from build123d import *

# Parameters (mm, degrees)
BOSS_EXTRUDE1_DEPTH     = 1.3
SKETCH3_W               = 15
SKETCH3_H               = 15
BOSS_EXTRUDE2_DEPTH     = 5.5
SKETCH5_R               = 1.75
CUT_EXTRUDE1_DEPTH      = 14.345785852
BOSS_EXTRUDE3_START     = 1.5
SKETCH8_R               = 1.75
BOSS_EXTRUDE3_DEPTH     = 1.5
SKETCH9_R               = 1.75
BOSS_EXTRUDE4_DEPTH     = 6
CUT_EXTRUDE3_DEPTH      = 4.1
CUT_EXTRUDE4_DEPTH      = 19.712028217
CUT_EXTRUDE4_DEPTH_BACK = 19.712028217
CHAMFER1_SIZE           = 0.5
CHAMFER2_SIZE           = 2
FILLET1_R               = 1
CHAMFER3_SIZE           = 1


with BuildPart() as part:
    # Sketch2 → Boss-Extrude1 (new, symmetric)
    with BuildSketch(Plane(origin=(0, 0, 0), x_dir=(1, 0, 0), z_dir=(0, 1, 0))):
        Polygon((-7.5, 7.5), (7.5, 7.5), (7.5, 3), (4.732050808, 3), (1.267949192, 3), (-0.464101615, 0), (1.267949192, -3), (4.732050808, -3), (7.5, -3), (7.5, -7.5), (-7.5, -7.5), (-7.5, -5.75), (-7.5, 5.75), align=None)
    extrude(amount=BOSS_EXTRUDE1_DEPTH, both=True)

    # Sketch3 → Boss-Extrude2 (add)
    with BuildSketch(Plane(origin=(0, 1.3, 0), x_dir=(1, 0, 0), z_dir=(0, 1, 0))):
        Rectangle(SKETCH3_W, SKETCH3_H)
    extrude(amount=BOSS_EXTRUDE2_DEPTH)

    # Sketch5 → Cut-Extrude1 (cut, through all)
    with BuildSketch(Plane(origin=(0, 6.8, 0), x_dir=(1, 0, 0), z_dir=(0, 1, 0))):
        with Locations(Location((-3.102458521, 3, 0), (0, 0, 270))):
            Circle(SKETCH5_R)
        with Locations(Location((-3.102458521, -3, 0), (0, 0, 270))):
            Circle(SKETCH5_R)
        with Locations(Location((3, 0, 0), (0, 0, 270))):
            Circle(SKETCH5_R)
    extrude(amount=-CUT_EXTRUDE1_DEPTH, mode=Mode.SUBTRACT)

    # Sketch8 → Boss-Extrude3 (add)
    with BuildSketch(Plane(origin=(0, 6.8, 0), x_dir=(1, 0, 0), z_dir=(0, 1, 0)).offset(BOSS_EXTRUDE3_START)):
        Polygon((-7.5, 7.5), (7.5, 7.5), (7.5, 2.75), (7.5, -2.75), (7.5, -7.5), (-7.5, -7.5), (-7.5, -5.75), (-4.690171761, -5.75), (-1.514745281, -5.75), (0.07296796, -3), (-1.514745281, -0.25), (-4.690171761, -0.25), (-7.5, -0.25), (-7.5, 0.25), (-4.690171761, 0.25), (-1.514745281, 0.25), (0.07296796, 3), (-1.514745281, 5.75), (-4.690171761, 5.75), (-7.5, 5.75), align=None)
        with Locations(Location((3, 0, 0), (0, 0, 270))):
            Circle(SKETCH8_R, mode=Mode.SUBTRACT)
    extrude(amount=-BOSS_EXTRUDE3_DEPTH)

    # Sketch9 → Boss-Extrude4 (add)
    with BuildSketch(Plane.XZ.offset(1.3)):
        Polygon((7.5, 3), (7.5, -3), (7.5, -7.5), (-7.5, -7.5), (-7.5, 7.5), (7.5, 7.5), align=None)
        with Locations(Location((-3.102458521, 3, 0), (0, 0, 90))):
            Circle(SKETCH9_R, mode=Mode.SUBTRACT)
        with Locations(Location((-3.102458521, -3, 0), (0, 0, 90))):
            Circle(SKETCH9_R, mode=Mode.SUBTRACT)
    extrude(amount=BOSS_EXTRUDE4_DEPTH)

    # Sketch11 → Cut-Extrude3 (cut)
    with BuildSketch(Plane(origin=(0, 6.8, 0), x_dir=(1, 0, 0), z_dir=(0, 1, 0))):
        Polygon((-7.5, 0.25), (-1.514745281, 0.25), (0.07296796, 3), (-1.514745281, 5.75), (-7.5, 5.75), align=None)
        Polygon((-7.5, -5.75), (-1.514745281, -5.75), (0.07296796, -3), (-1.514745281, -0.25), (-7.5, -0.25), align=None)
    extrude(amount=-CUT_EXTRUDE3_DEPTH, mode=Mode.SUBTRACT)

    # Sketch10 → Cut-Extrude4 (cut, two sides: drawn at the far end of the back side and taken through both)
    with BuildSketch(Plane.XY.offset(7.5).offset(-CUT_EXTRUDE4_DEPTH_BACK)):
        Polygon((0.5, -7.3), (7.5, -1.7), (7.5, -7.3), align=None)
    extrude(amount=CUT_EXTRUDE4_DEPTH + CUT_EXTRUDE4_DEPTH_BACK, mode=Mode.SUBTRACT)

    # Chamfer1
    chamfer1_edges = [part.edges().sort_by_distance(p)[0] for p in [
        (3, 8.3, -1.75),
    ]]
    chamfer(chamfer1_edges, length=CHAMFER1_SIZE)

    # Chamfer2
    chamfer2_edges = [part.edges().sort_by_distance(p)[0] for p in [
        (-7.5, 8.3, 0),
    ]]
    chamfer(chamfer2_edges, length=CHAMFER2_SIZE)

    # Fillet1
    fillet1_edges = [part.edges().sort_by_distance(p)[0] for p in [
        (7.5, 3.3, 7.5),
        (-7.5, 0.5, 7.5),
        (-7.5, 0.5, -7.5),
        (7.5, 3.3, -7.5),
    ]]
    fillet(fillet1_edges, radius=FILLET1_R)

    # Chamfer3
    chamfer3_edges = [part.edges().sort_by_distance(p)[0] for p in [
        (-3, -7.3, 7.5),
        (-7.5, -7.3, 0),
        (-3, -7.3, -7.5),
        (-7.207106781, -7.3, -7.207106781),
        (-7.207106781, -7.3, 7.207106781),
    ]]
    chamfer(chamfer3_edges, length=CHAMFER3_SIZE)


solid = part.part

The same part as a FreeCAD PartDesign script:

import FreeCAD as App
import Part
import Sketcher
Q = App.Units.Quantity


def edges_at(feature, points):
    """Names of the edges that pass closest to the given points."""
    edges = feature.Shape.Edges
    near = lambda p: min(range(len(edges)), key=lambda i: edges[i].distToShape(Part.Vertex(*p))[0])
    return sorted({f"Edge{near(p) + 1}" for p in points})

doc = App.newDocument("Part")
params = doc.addObject("Spreadsheet::Sheet", "Params")
for row, (alias, value) in enumerate([
    ("sketch1_width", "15 mm"),
    ("sketch1_height", "4.5 mm"),
    ("pad1_length", "2.6 mm"),
    ("sketch2_width", "15 mm"),
    ("pad2_length", "5.5 mm"),
    ("sketch3_diameter", "3.5 mm"),
    ("sketch4_diameter", "3.5 mm"),
    ("sketch4_width", "15 mm"),
    ("sketch4_height", "0.5 mm"),
    ("pad3_length", "1.5 mm"),
    ("sketch5_diameter", "3.5 mm"),
    ("sketch5_width", "15 mm"),
    ("pad4_length", "6 mm"),
    ("sketch6_height", "5.5 mm"),
    ("pocket2_length", "4.1 mm"),
    ("sketch7_width", "7 mm"),
    ("sketch7_height", "5.6 mm"),
    ("chamfer_size", "0.5 mm"),
    ("chamfer2_size", "2 mm"),
    ("fillet_radius", "1 mm"),
    ("chamfer3_size", "1 mm"),
], start=1):
    params.set(f"A{row}", alias)
    params.set(f"B{row}", "=" + value)
    params.setAlias(f"B{row}", alias)

body = doc.addObject("PartDesign::Body", "Body")

sketch1 = body.newObject("Sketcher::SketchObject", "Sketch")
sketch1.AttachmentSupport = (doc.getObject("XZ_Plane"), [""])
sketch1.MapMode = "FlatFace"
sketch1.addGeometry(Part.LineSegment(App.Vector(7.5, -7.5, 0), App.Vector(-7.5, -7.5, 0)), False)
sketch1.addGeometry(Part.LineSegment(App.Vector(-7.5, -7.5, 0), App.Vector(-7.5, 7.5, 0)), False)
sketch1.addGeometry(Part.LineSegment(App.Vector(-7.5, 7.5, 0), App.Vector(7.5, 7.5, 0)), False)
sketch1.addGeometry(Part.LineSegment(App.Vector(7.5, 7.5, 0), App.Vector(7.5, 3, 0)), False)
sketch1.addGeometry(Part.LineSegment(App.Vector(7.5, 3, 0), App.Vector(1.3, 3, 0)), False)
sketch1.addGeometry(Part.LineSegment(App.Vector(1.3, 3, 0), App.Vector(-0.5, 0, 0)), False)
sketch1.addGeometry(Part.LineSegment(App.Vector(-0.5, 0, 0), App.Vector(1.3, -3, 0)), False)
sketch1.addGeometry(Part.LineSegment(App.Vector(1.3, -3, 0), App.Vector(7.5, -3, 0)), False)
sketch1.addGeometry(Part.LineSegment(App.Vector(7.5, -3, 0), App.Vector(7.5, -7.5, 0)), False)
sketch1.addConstraint(Sketcher.Constraint("Coincident", 0, 2, 1, 1))
sketch1.addConstraint(Sketcher.Constraint("Coincident", 1, 2, 2, 1))
sketch1.addConstraint(Sketcher.Constraint("Coincident", 2, 2, 3, 1))
sketch1.addConstraint(Sketcher.Constraint("Coincident", 3, 2, 4, 1))
sketch1.addConstraint(Sketcher.Constraint("Coincident", 4, 2, 5, 1))
sketch1.addConstraint(Sketcher.Constraint("Coincident", 5, 2, 6, 1))
sketch1.addConstraint(Sketcher.Constraint("Coincident", 6, 2, 7, 1))
sketch1.addConstraint(Sketcher.Constraint("Coincident", 7, 2, 8, 1))
sketch1.addConstraint(Sketcher.Constraint("Coincident", 8, 2, 0, 1))
sketch1.addConstraint(Sketcher.Constraint("Horizontal", 0))
sketch1.addConstraint(Sketcher.Constraint("Vertical", 1))
sketch1.addConstraint(Sketcher.Constraint("Horizontal", 2))
sketch1.addConstraint(Sketcher.Constraint("Vertical", 3))
sketch1.addConstraint(Sketcher.Constraint("Horizontal", 4))
sketch1.addConstraint(Sketcher.Constraint("Horizontal", 7))
sketch1.addConstraint(Sketcher.Constraint("Vertical", 8))
sketch1.addConstraint(Sketcher.Constraint("Symmetric", 0, 2, 2, 2, -1, 1))
sketch1.addConstraint(Sketcher.Constraint("Symmetric", 4, 2, 6, 2, -1))
sketch1.addConstraint(Sketcher.Constraint("PointOnObject", 5, 2, -1))
sketch1.addConstraint(Sketcher.Constraint("Vertical", 3, 2, 7, 2))
sketch1.addConstraint(Sketcher.Constraint("Equal", 2, 1))
sketch1.addConstraint(Sketcher.Constraint("DistanceX", 0, 2, 0, 1, Q("15 mm")))
sketch1.addConstraint(Sketcher.Constraint("Angle", 5, Q("-120 deg")))
sketch1.addConstraint(Sketcher.Constraint("DistanceY", 3, 2, 3, 1, Q("4.5 mm")))
sketch1.addConstraint(Sketcher.Constraint("DistanceX", 4, 2, 4, 1, Q("6.232051 mm")))
sketch1.setExpression("Constraints[21]", "Params.sketch1_width")
sketch1.setExpression("Constraints[23]", "Params.sketch1_height")
pad1 = body.newObject("PartDesign::Pad", "Pad")
pad1.Profile = sketch1
pad1.setExpression("Length", "Params.pad1_length")
pad1.Midplane = True

sketch2 = body.newObject("Sketcher::SketchObject", "Sketch001")
sketch2.AttachmentSupport = (doc.getObject("XZ_Plane"), [""])
sketch2.MapMode = "FlatFace"
sketch2.AttachmentOffset = App.Placement(App.Vector(0, 0, -1.3), App.Rotation())
sketch2.addGeometry(Part.LineSegment(App.Vector(-8, -8, 0), App.Vector(-8, 8, 0)), False)
sketch2.addGeometry(Part.LineSegment(App.Vector(-8, 8, 0), App.Vector(8, 8, 0)), False)
sketch2.addGeometry(Part.LineSegment(App.Vector(8, 8, 0), App.Vector(8, -8, 0)), False)
sketch2.addGeometry(Part.LineSegment(App.Vector(8, -8, 0), App.Vector(-8, -8, 0)), False)
sketch2.addConstraint(Sketcher.Constraint("Coincident", 0, 2, 1, 1))
sketch2.addConstraint(Sketcher.Constraint("Coincident", 1, 2, 2, 1))
sketch2.addConstraint(Sketcher.Constraint("Coincident", 2, 2, 3, 1))
sketch2.addConstraint(Sketcher.Constraint("Coincident", 3, 2, 0, 1))
sketch2.addConstraint(Sketcher.Constraint("Vertical", 0))
sketch2.addConstraint(Sketcher.Constraint("Horizontal", 1))
sketch2.addConstraint(Sketcher.Constraint("Vertical", 2))
sketch2.addConstraint(Sketcher.Constraint("Horizontal", 3))
sketch2.addConstraint(Sketcher.Constraint("Symmetric", 0, 2, 2, 2, -1, 1))
sketch2.addConstraint(Sketcher.Constraint("Equal", 3, 0))
sketch2.addConstraint(Sketcher.Constraint("DistanceX", 1, 1, 1, 2, Q("15 mm")))
sketch2.setExpression("Constraints[10]", "Params.sketch2_width")
pad2 = body.newObject("PartDesign::Pad", "Pad001")
pad2.Profile = sketch2
pad2.setExpression("Length", "Params.pad2_length")
pad2.Reversed = True

sketch3 = body.newObject("Sketcher::SketchObject", "Sketch002")
sketch3.AttachmentSupport = (doc.getObject("XZ_Plane"), [""])
sketch3.MapMode = "FlatFace"
sketch3.AttachmentOffset = App.Placement(App.Vector(0, 0, -6.8), App.Rotation())
sketch3.addGeometry(Part.Circle(App.Vector(-3.1, -3, 0), App.Vector(0, 0, 1), 1.8), False)
sketch3.addGeometry(Part.Circle(App.Vector(-3.1, 3, 0), App.Vector(0, 0, 1), 1.8), False)
sketch3.addGeometry(Part.Circle(App.Vector(3, 0, 0), App.Vector(0, 0, 1), 1.8), False)
sketch3.addConstraint(Sketcher.Constraint("Equal", 0, 1))
sketch3.addConstraint(Sketcher.Constraint("Equal", 1, 2))
sketch3.addConstraint(Sketcher.Constraint("Symmetric", 0, 3, 1, 3, -1))
sketch3.addConstraint(Sketcher.Constraint("PointOnObject", 2, 3, -1))
sketch3.addConstraint(Sketcher.Constraint("Diameter", 0, Q("3.5 mm")))
sketch3.addConstraint(Sketcher.Constraint("DistanceY", 0, 3, -1, 1, Q("3 mm")))
sketch3.addConstraint(Sketcher.Constraint("DistanceX", -1, 1, 2, 3, Q("3 mm")))
sketch3.addConstraint(Sketcher.Constraint("DistanceX", 0, 3, -1, 1, Q("3.102459 mm")))
sketch3.setExpression("Constraints[4]", "Params.sketch3_diameter")
pocket1 = body.newObject("PartDesign::Pocket", "Pocket")
pocket1.Profile = sketch3
pocket1.Type = "ThroughAll"
pocket1.Reversed = True

sketch4 = body.newObject("Sketcher::SketchObject", "Sketch003")
sketch4.AttachmentSupport = (doc.getObject("XZ_Plane"), [""])
sketch4.MapMode = "FlatFace"
sketch4.AttachmentOffset = App.Placement(App.Vector(0, 0, -8.3), App.Rotation())
sketch4.addGeometry(Part.LineSegment(App.Vector(7.5, -7.5, 0), App.Vector(-7.5, -7.5, 0)), False)
sketch4.addGeometry(Part.LineSegment(App.Vector(-7.5, -7.5, 0), App.Vector(-7.5, -5.8, 0)), False)
sketch4.addGeometry(Part.LineSegment(App.Vector(-7.5, -5.8, 0), App.Vector(-1.5, -5.8, 0)), False)
sketch4.addGeometry(Part.LineSegment(App.Vector(-1.5, -5.8, 0), App.Vector(0.1, -3, 0)), False)
sketch4.addGeometry(Part.LineSegment(App.Vector(0.1, -3, 0), App.Vector(-1.5, -0.2, 0)), False)
sketch4.addGeometry(Part.LineSegment(App.Vector(-1.5, -0.2, 0), App.Vector(-7.5, -0.2, 0)), False)
sketch4.addGeometry(Part.LineSegment(App.Vector(-7.5, -0.2, 0), App.Vector(-7.5, 0.2, 0)), False)
sketch4.addGeometry(Part.LineSegment(App.Vector(-7.5, 0.2, 0), App.Vector(-1.5, 0.2, 0)), False)
sketch4.addGeometry(Part.LineSegment(App.Vector(-1.5, 0.2, 0), App.Vector(0.1, 3, 0)), False)
sketch4.addGeometry(Part.LineSegment(App.Vector(0.1, 3, 0), App.Vector(-1.5, 5.8, 0)), False)
sketch4.addGeometry(Part.LineSegment(App.Vector(-1.5, 5.8, 0), App.Vector(-7.5, 5.8, 0)), False)
sketch4.addGeometry(Part.LineSegment(App.Vector(-7.5, 5.8, 0), App.Vector(-7.5, 7.5, 0)), False)
sketch4.addGeometry(Part.LineSegment(App.Vector(-7.5, 7.5, 0), App.Vector(7.5, 7.5, 0)), False)
sketch4.addGeometry(Part.LineSegment(App.Vector(7.5, 7.5, 0), App.Vector(7.5, -7.5, 0)), False)
sketch4.addGeometry(Part.Circle(App.Vector(3, 0, 0), App.Vector(0, 0, 1), 1.8), False)
sketch4.addConstraint(Sketcher.Constraint("Coincident", 0, 2, 1, 1))
sketch4.addConstraint(Sketcher.Constraint("Coincident", 1, 2, 2, 1))
sketch4.addConstraint(Sketcher.Constraint("Coincident", 2, 2, 3, 1))
sketch4.addConstraint(Sketcher.Constraint("Coincident", 3, 2, 4, 1))
sketch4.addConstraint(Sketcher.Constraint("Coincident", 4, 2, 5, 1))
sketch4.addConstraint(Sketcher.Constraint("Coincident", 5, 2, 6, 1))
sketch4.addConstraint(Sketcher.Constraint("Coincident", 6, 2, 7, 1))
sketch4.addConstraint(Sketcher.Constraint("Coincident", 7, 2, 8, 1))
sketch4.addConstraint(Sketcher.Constraint("Coincident", 8, 2, 9, 1))
sketch4.addConstraint(Sketcher.Constraint("Coincident", 9, 2, 10, 1))
sketch4.addConstraint(Sketcher.Constraint("Coincident", 10, 2, 11, 1))
sketch4.addConstraint(Sketcher.Constraint("Coincident", 11, 2, 12, 1))
sketch4.addConstraint(Sketcher.Constraint("Coincident", 12, 2, 13, 1))
sketch4.addConstraint(Sketcher.Constraint("Coincident", 13, 2, 0, 1))
sketch4.addConstraint(Sketcher.Constraint("Horizontal", 0))
sketch4.addConstraint(Sketcher.Constraint("Vertical", 1))
sketch4.addConstraint(Sketcher.Constraint("Horizontal", 2))
sketch4.addConstraint(Sketcher.Constraint("Horizontal", 5))
sketch4.addConstraint(Sketcher.Constraint("Vertical", 6))
sketch4.addConstraint(Sketcher.Constraint("Horizontal", 7))
sketch4.addConstraint(Sketcher.Constraint("Horizontal", 10))
sketch4.addConstraint(Sketcher.Constraint("Vertical", 11))
sketch4.addConstraint(Sketcher.Constraint("Horizontal", 12))
sketch4.addConstraint(Sketcher.Constraint("Vertical", 13))
sketch4.addConstraint(Sketcher.Constraint("Symmetric", 0, 2, 12, 2, -1, 1))
sketch4.addConstraint(Sketcher.Constraint("Symmetric", 4, 2, 7, 2, -1))
sketch4.addConstraint(Sketcher.Constraint("Symmetric", 3, 2, 8, 2, -1))
sketch4.addConstraint(Sketcher.Constraint("Symmetric", 2, 2, 9, 2, -1))
sketch4.addConstraint(Sketcher.Constraint("PointOnObject", 14, 3, -1))
sketch4.addConstraint(Sketcher.Constraint("Parallel", 3, 8))
sketch4.addConstraint(Sketcher.Constraint("Vertical", 2, 2, 4, 2))
sketch4.addConstraint(Sketcher.Constraint("Vertical", 1, 2, 5, 2))
sketch4.addConstraint(Sketcher.Constraint("Vertical", 6, 2, 10, 2))
sketch4.addConstraint(Sketcher.Constraint("Equal", 12, 13))
sketch4.addConstraint(Sketcher.Constraint("Diameter", 14, Q("3.5 mm")))
sketch4.addConstraint(Sketcher.Constraint("DistanceX", 0, 2, 0, 1, Q("15 mm")))
sketch4.addConstraint(Sketcher.Constraint("Angle", 3, Q("60 deg")))
sketch4.addConstraint(Sketcher.Constraint("DistanceY", 6, 1, 6, 2, Q("0.5 mm")))
sketch4.addConstraint(Sketcher.Constraint("DistanceX", -1, 1, 14, 3, Q("3 mm")))
sketch4.addConstraint(Sketcher.Constraint("DistanceY", 3, 2, -1, 1, Q("3 mm")))
sketch4.addConstraint(Sketcher.Constraint("DistanceX", 2, 1, 2, 2, Q("5.985255 mm")))
sketch4.setExpression("Constraints[34]", "Params.sketch4_diameter")
sketch4.setExpression("Constraints[35]", "Params.sketch4_width")
sketch4.setExpression("Constraints[37]", "Params.sketch4_height")
pad3 = body.newObject("PartDesign::Pad", "Pad002")
pad3.Profile = sketch4
pad3.setExpression("Length", "Params.pad3_length")

sketch5 = body.newObject("Sketcher::SketchObject", "Sketch004")
sketch5.AttachmentSupport = (doc.getObject("XZ_Plane"), [""])
sketch5.MapMode = "FlatFace"
sketch5.AttachmentOffset = App.Placement(App.Vector(0, 0, 1.3), App.Rotation())
sketch5.addGeometry(Part.LineSegment(App.Vector(7.5, -7.5, 0), App.Vector(7.5, 7.5, 0)), False)
sketch5.addGeometry(Part.LineSegment(App.Vector(7.5, 7.5, 0), App.Vector(-7.5, 7.5, 0)), False)
sketch5.addGeometry(Part.LineSegment(App.Vector(-7.5, 7.5, 0), App.Vector(-7.5, -7.5, 0)), False)
sketch5.addGeometry(Part.LineSegment(App.Vector(-7.5, -7.5, 0), App.Vector(7.5, -7.5, 0)), False)
sketch5.addGeometry(Part.Circle(App.Vector(-3.1, -3, 0), App.Vector(0, 0, 1), 1.8), False)
sketch5.addGeometry(Part.Circle(App.Vector(-3.1, 3, 0), App.Vector(0, 0, 1), 1.8), False)
sketch5.addConstraint(Sketcher.Constraint("Coincident", 0, 2, 1, 1))
sketch5.addConstraint(Sketcher.Constraint("Coincident", 1, 2, 2, 1))
sketch5.addConstraint(Sketcher.Constraint("Coincident", 2, 2, 3, 1))
sketch5.addConstraint(Sketcher.Constraint("Coincident", 3, 2, 0, 1))
sketch5.addConstraint(Sketcher.Constraint("Vertical", 0))
sketch5.addConstraint(Sketcher.Constraint("Horizontal", 1))
sketch5.addConstraint(Sketcher.Constraint("Vertical", 2))
sketch5.addConstraint(Sketcher.Constraint("Horizontal", 3))
sketch5.addConstraint(Sketcher.Constraint("Equal", 4, 5))
sketch5.addConstraint(Sketcher.Constraint("Symmetric", 0, 2, 2, 2, -1, 1))
sketch5.addConstraint(Sketcher.Constraint("Symmetric", 4, 3, 5, 3, -1))
sketch5.addConstraint(Sketcher.Constraint("Equal", 3, 0))
sketch5.addConstraint(Sketcher.Constraint("Diameter", 4, Q("3.5 mm")))
sketch5.addConstraint(Sketcher.Constraint("DistanceX", 1, 2, 1, 1, Q("15 mm")))
sketch5.addConstraint(Sketcher.Constraint("DistanceY", 4, 3, -1, 1, Q("3 mm")))
sketch5.addConstraint(Sketcher.Constraint("DistanceX", 4, 3, -1, 1, Q("3.102459 mm")))
sketch5.setExpression("Constraints[12]", "Params.sketch5_diameter")
sketch5.setExpression("Constraints[13]", "Params.sketch5_width")
pad4 = body.newObject("PartDesign::Pad", "Pad003")
pad4.Profile = sketch5
pad4.setExpression("Length", "Params.pad4_length")

sketch6 = body.newObject("Sketcher::SketchObject", "Sketch005")
sketch6.AttachmentSupport = (doc.getObject("XZ_Plane"), [""])
sketch6.MapMode = "FlatFace"
sketch6.AttachmentOffset = App.Placement(App.Vector(0, 0, -6.8), App.Rotation())
sketch6.addGeometry(Part.LineSegment(App.Vector(-7.5, -0.2, 0), App.Vector(-1.5, -0.2, 0)), False)
sketch6.addGeometry(Part.LineSegment(App.Vector(-1.5, -0.2, 0), App.Vector(0.1, -3, 0)), False)
sketch6.addGeometry(Part.LineSegment(App.Vector(0.1, -3, 0), App.Vector(-1.5, -5.8, 0)), False)
sketch6.addGeometry(Part.LineSegment(App.Vector(-1.5, -5.8, 0), App.Vector(-7.5, -5.8, 0)), False)
sketch6.addGeometry(Part.LineSegment(App.Vector(-7.5, -5.8, 0), App.Vector(-7.5, -0.2, 0)), False)
sketch6.addGeometry(Part.LineSegment(App.Vector(-7.5, 5.8, 0), App.Vector(-1.5, 5.8, 0)), False)
sketch6.addGeometry(Part.LineSegment(App.Vector(-1.5, 5.8, 0), App.Vector(0.1, 3, 0)), False)
sketch6.addGeometry(Part.LineSegment(App.Vector(0.1, 3, 0), App.Vector(-1.5, 0.2, 0)), False)
sketch6.addGeometry(Part.LineSegment(App.Vector(-1.5, 0.2, 0), App.Vector(-7.5, 0.2, 0)), False)
sketch6.addGeometry(Part.LineSegment(App.Vector(-7.5, 0.2, 0), App.Vector(-7.5, 5.8, 0)), False)
sketch6.addConstraint(Sketcher.Constraint("Coincident", 0, 2, 1, 1))
sketch6.addConstraint(Sketcher.Constraint("Coincident", 1, 2, 2, 1))
sketch6.addConstraint(Sketcher.Constraint("Coincident", 2, 2, 3, 1))
sketch6.addConstraint(Sketcher.Constraint("Coincident", 3, 2, 4, 1))
sketch6.addConstraint(Sketcher.Constraint("Coincident", 4, 2, 0, 1))
sketch6.addConstraint(Sketcher.Constraint("Coincident", 5, 2, 6, 1))
sketch6.addConstraint(Sketcher.Constraint("Coincident", 6, 2, 7, 1))
sketch6.addConstraint(Sketcher.Constraint("Coincident", 7, 2, 8, 1))
sketch6.addConstraint(Sketcher.Constraint("Coincident", 8, 2, 9, 1))
sketch6.addConstraint(Sketcher.Constraint("Coincident", 9, 2, 5, 1))
sketch6.addConstraint(Sketcher.Constraint("Horizontal", 0))
sketch6.addConstraint(Sketcher.Constraint("Horizontal", 3))
sketch6.addConstraint(Sketcher.Constraint("Vertical", 4))
sketch6.addConstraint(Sketcher.Constraint("Horizontal", 5))
sketch6.addConstraint(Sketcher.Constraint("Horizontal", 8))
sketch6.addConstraint(Sketcher.Constraint("Vertical", 9))
sketch6.addConstraint(Sketcher.Constraint("Symmetric", 2, 2, 5, 2, -1))
sketch6.addConstraint(Sketcher.Constraint("Symmetric", 1, 2, 6, 2, -1))
sketch6.addConstraint(Sketcher.Constraint("Symmetric", 0, 2, 7, 2, -1))
sketch6.addConstraint(Sketcher.Constraint("Parallel", 1, 6))
sketch6.addConstraint(Sketcher.Constraint("Vertical", 0, 2, 2, 2))
sketch6.addConstraint(Sketcher.Constraint("Vertical", 4, 2, 8, 2))
sketch6.addConstraint(Sketcher.Constraint("Angle", 1, Q("-60 deg")))
sketch6.addConstraint(Sketcher.Constraint("DistanceY", 4, 1, 4, 2, Q("5.5 mm")))
sketch6.addConstraint(Sketcher.Constraint("DistanceY", 1, 2, -1, 1, Q("3 mm")))
sketch6.addConstraint(Sketcher.Constraint("DistanceX", 3, 2, -1, 1, Q("7.5 mm")))
sketch6.addConstraint(Sketcher.Constraint("DistanceX", 0, 1, 0, 2, Q("5.985255 mm")))
sketch6.setExpression("Constraints[23]", "Params.sketch6_height")
pocket2 = body.newObject("PartDesign::Pocket", "Pocket001")
pocket2.Profile = sketch6
pocket2.setExpression("Length", "Params.pocket2_length")
pocket2.Reversed = True

sketch7 = body.newObject("Sketcher::SketchObject", "Sketch006")
sketch7.AttachmentSupport = (doc.getObject("XY_Plane"), [""])
sketch7.MapMode = "FlatFace"
sketch7.AttachmentOffset = App.Placement(App.Vector(0, 0, 7.5), App.Rotation())
sketch7.addGeometry(Part.LineSegment(App.Vector(8, -2, 0), App.Vector(0, -7, 0)), False)
sketch7.addGeometry(Part.LineSegment(App.Vector(0, -7, 0), App.Vector(8, -7, 0)), False)
sketch7.addGeometry(Part.LineSegment(App.Vector(8, -7, 0), App.Vector(8, -2, 0)), False)
sketch7.addConstraint(Sketcher.Constraint("Coincident", 0, 2, 1, 1))
sketch7.addConstraint(Sketcher.Constraint("Coincident", 1, 2, 2, 1))
sketch7.addConstraint(Sketcher.Constraint("Coincident", 2, 2, 0, 1))
sketch7.addConstraint(Sketcher.Constraint("Horizontal", 1))
sketch7.addConstraint(Sketcher.Constraint("Vertical", 2))
sketch7.addConstraint(Sketcher.Constraint("DistanceX", 1, 1, 1, 2, Q("7 mm")))
sketch7.addConstraint(Sketcher.Constraint("DistanceY", 2, 1, 2, 2, Q("5.6 mm")))
sketch7.addConstraint(Sketcher.Constraint("DistanceX", -1, 1, 0, 2, Q("0.5 mm")))
sketch7.addConstraint(Sketcher.Constraint("DistanceY", 0, 2, -1, 1, Q("7.3 mm")))
sketch7.setExpression("Constraints[5]", "Params.sketch7_width")
sketch7.setExpression("Constraints[6]", "Params.sketch7_height")
pocket3 = body.newObject("PartDesign::Pocket", "Pocket002")
pocket3.Profile = sketch7
pocket3.Type = "ThroughAll"
pocket3.Midplane = True
doc.recompute()

chamfer = body.newObject("PartDesign::Chamfer", "Chamfer")
chamfer.Base = (pocket3, edges_at(pocket3, [(3, 8.3, -1.75)]))
chamfer.setExpression("Size", "Params.chamfer_size")
doc.recompute()

chamfer2 = body.newObject("PartDesign::Chamfer", "Chamfer001")
chamfer2.Base = (chamfer, edges_at(chamfer, [(-7.5, 8.3, 0)]))
chamfer2.setExpression("Size", "Params.chamfer2_size")
doc.recompute()

fillet = body.newObject("PartDesign::Fillet", "Fillet")
fillet.Base = (chamfer2, edges_at(chamfer2, [
    (7.5, 3.3, 7.5),
    (-7.5, 0.5, 7.5),
    (-7.5, 0.5, -7.5),
    (7.5, 3.3, -7.5),
]))
fillet.setExpression("Radius", "Params.fillet_radius")
doc.recompute()

chamfer3 = body.newObject("PartDesign::Chamfer", "Chamfer002")
chamfer3.Base = (fillet, edges_at(fillet, [
    (-3, -7.3, 7.5),
    (-7.5, -7.3, 0),
    (-3, -7.3, -7.5),
    (-7.207, -7.3, -7.207),
    (-7.207, -7.3, 7.207),
]))
chamfer3.setExpression("Size", "Params.chamfer3_size")

doc.recompute()
